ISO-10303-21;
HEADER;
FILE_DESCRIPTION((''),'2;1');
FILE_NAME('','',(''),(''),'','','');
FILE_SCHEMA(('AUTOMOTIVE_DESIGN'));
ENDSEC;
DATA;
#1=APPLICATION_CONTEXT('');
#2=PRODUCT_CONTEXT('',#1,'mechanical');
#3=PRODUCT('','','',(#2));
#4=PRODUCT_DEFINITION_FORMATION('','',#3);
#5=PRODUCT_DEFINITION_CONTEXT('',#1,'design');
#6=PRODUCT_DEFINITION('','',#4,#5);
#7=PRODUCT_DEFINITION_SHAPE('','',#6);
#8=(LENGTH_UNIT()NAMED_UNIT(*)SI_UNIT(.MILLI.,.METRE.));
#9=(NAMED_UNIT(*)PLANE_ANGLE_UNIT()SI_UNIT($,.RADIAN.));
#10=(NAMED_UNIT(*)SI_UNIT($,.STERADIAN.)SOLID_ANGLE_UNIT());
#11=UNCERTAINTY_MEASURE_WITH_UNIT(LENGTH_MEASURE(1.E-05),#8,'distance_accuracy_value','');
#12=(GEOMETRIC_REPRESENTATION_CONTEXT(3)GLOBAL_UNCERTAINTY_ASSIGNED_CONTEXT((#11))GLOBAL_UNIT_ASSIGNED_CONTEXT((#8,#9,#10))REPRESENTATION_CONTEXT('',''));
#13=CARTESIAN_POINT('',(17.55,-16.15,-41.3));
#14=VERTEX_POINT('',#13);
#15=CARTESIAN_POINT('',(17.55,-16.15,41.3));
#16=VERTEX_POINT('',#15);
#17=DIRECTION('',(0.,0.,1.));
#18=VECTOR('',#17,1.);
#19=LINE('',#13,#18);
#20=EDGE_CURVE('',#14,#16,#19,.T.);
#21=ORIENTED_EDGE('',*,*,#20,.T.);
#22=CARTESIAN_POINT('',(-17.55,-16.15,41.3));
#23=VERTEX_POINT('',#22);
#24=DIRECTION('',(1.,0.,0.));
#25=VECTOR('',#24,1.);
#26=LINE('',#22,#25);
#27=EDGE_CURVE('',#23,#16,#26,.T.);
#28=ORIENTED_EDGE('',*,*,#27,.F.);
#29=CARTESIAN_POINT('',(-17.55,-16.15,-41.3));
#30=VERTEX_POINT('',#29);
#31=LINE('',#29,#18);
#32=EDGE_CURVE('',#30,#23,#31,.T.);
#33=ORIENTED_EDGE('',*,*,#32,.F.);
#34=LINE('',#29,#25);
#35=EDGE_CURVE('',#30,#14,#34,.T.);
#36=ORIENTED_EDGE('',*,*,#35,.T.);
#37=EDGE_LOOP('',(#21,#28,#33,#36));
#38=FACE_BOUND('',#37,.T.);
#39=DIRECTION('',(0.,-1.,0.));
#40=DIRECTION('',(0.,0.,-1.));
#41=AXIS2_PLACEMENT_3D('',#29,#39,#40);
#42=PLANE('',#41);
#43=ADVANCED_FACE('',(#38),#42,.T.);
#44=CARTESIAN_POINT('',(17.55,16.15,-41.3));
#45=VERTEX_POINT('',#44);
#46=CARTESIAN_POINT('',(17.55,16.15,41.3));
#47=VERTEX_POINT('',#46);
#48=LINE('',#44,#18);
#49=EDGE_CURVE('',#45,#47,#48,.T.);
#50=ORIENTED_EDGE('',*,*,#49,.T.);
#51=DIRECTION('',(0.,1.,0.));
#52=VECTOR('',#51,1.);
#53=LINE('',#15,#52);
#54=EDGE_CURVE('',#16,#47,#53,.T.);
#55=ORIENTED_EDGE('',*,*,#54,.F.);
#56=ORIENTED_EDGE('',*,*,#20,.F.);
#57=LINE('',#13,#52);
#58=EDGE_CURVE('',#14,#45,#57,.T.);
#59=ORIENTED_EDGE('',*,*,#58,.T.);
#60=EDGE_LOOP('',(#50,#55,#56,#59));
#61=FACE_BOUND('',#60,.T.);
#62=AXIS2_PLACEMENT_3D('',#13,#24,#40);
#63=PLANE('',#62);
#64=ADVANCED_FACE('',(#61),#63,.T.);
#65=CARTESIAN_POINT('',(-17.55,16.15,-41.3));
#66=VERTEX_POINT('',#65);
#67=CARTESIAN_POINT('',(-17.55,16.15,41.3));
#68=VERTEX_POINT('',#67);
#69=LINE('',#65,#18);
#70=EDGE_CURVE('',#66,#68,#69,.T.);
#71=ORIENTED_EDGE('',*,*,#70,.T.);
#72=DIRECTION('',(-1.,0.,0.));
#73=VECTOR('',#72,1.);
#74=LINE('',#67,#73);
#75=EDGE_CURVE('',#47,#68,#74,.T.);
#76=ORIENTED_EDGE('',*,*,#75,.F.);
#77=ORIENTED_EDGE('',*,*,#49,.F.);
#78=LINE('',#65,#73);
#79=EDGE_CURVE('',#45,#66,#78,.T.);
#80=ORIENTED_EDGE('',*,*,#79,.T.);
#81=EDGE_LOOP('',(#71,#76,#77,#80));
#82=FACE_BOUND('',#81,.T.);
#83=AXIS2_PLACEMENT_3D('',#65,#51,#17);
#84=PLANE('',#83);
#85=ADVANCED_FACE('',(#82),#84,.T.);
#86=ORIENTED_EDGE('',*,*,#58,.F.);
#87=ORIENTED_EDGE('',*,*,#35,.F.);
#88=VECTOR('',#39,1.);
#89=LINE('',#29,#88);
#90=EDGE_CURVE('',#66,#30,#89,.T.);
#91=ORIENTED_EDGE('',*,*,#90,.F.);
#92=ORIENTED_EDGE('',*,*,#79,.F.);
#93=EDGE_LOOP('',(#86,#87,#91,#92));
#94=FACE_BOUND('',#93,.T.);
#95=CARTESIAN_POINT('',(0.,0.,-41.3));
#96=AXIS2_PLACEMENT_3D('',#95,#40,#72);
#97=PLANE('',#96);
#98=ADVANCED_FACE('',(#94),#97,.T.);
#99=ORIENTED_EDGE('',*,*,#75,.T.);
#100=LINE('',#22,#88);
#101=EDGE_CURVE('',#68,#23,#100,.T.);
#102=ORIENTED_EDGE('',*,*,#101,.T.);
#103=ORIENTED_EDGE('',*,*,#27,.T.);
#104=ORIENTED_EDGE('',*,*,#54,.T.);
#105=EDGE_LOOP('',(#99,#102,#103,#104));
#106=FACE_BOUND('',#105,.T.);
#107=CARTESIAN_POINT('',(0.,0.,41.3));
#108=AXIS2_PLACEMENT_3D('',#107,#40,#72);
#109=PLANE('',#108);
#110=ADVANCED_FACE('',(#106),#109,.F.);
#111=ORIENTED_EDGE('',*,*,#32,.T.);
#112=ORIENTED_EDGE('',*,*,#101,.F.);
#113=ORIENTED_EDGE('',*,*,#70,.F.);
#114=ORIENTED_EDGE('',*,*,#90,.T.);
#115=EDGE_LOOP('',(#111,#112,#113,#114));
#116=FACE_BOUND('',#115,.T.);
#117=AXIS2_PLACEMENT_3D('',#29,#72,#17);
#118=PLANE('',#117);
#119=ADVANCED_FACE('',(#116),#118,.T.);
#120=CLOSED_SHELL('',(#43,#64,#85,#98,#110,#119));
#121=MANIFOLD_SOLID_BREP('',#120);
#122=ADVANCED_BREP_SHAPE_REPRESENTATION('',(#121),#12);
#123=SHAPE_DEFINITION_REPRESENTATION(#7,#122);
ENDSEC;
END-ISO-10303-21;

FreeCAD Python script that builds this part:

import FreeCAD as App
import Part
import Sketcher

V = App.Vector
Q = App.Units.Quantity


def add_polygon(sketch, points):
    """Adds a closed chain of lines whose ends are joined by coincident constraints."""
    first, n = sketch.GeometryCount, len(points)
    for a, b in zip(points, points[1:] + points[:1]):
        sketch.addGeometry(Part.LineSegment(App.Vector(*a, 0), App.Vector(*b, 0)), False)
    for i in range(n):
        sketch.addConstraint(Sketcher.Constraint("Coincident", first + i, 2, first + (i + 1) % n, 1))

doc = App.newDocument("Part")
body = doc.addObject("PartDesign::Body", "Body")

# Sketch on XY plane
sketch1 = body.newObject("Sketcher::SketchObject", "Sketch")
sketch1.AttachmentSupport = (doc.getObject("XY_Plane"), [""])
sketch1.MapMode = "FlatFace"
add_polygon(sketch1, [(-17.55, 16.15), (-17.55, -16.15), (17.55, -16.15), (17.55, 16.15)])  # lines 0-3
sketch1.addConstraint([
    Sketcher.Constraint("Vertical", 0),
    Sketcher.Constraint("Horizontal", 1),
    Sketcher.Constraint("Vertical", 2),
    Sketcher.Constraint("Horizontal", 3),
    Sketcher.Constraint("Symmetric", 0, 2, 2, 2, -1, 1),
    Sketcher.Constraint("DistanceX", 1, 1, 1, 2, Q("35.1 mm")),
    Sketcher.Constraint("DistanceY", 0, 2, 0, 1, Q("32.3 mm")),
])
pad1 = body.newObject("PartDesign::Pad", "Pad")
pad1.Profile = sketch1
pad1.Type = "TwoLengths"
pad1.Length = 41.3
pad1.Length2 = 41.3

doc.recompute()
